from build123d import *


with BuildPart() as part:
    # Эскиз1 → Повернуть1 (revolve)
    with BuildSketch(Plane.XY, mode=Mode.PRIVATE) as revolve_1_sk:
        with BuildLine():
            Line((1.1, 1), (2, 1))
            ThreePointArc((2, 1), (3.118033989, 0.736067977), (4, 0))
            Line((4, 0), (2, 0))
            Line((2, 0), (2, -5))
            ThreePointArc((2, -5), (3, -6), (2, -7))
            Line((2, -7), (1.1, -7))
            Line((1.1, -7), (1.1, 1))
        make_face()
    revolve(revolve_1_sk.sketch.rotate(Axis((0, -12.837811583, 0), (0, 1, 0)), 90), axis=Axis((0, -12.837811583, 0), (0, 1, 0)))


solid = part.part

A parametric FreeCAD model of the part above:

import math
import FreeCAD as App
import Part
import Sketcher

doc = App.newDocument("Part")
body = doc.addObject("PartDesign::Body", "Body")

sketch1 = body.newObject("Sketcher::SketchObject", "Sketch")
sketch1.AttachmentSupport = (doc.getObject("XY_Plane"), [""])
sketch1.MapMode = "FlatFace"
sketch1.addGeometry([
    Part.LineSegment(App.Vector(2, 1, 0), App.Vector(1.1, 1, 0)),
    Part.LineSegment(App.Vector(1.1, 1, 0), App.Vector(1.1, -7, 0)),
    Part.LineSegment(App.Vector(1.1, -7, 0), App.Vector(2, -7, 0)),
    Part.ArcOfCircle(Part.Circle(App.Vector(2, -6, 0), App.Vector(0, 0, 1), 1), math.radians(-90), math.radians(90)),
    Part.LineSegment(App.Vector(2, -5, 0), App.Vector(2, 0, 0)),
    Part.LineSegment(App.Vector(2, 0, 0), App.Vector(4, 0, 0)),
    Part.ArcOfCircle(Part.Circle(App.Vector(2, -1.5, 0), App.Vector(0, 0, 1), 2.5), math.radians(37), math.radians(90)),
], False)
sketch1.addConstraint([
    Sketcher.Constraint("Coincident", 0, 2, 1, 1),
    Sketcher.Constraint("Coincident", 1, 2, 2, 1),
    Sketcher.Constraint("Tangent", 2, 2, 3, 1),
    Sketcher.Constraint("Coincident", 3, 2, 4, 1),
    Sketcher.Constraint("Coincident", 4, 2, 5, 1),
    Sketcher.Constraint("Coincident", 5, 2, 6, 1),
    Sketcher.Constraint("Tangent", 6, 2, 0, 1),
    Sketcher.Constraint("Horizontal", 0),
    Sketcher.Constraint("Vertical", 1),
    Sketcher.Constraint("Horizontal", 2),
    Sketcher.Constraint("Vertical", 4),
    Sketcher.Constraint("Horizontal", 5),
    Sketcher.Constraint("PointOnObject", 4, 2, -1),
    Sketcher.Constraint("Vertical", 3, 3, 6, 3),
    Sketcher.Constraint("Vertical", 2, 2, 3, 2),
    Sketcher.Constraint("Radius", 3, 1.0),
    Sketcher.Constraint("Radius", 6, 2.5),
    Sketcher.Constraint("DistanceX", 5, 1, 5, 2, 2.0),
    Sketcher.Constraint("DistanceY", 1, 2, 1, 1, 8.0),
    Sketcher.Constraint("DistanceX", 0, 2, 0, 1, 0.9),
    Sketcher.Constraint("DistanceX", -1, 1, 3, 3, 2.0),
])
revolution = body.newObject("PartDesign::Revolution", "Revolution")
revolution.Profile = sketch1
revolution.ReferenceAxis = (sketch1, ["V_Axis"])
revolution.Angle = 360

doc.recompute()
